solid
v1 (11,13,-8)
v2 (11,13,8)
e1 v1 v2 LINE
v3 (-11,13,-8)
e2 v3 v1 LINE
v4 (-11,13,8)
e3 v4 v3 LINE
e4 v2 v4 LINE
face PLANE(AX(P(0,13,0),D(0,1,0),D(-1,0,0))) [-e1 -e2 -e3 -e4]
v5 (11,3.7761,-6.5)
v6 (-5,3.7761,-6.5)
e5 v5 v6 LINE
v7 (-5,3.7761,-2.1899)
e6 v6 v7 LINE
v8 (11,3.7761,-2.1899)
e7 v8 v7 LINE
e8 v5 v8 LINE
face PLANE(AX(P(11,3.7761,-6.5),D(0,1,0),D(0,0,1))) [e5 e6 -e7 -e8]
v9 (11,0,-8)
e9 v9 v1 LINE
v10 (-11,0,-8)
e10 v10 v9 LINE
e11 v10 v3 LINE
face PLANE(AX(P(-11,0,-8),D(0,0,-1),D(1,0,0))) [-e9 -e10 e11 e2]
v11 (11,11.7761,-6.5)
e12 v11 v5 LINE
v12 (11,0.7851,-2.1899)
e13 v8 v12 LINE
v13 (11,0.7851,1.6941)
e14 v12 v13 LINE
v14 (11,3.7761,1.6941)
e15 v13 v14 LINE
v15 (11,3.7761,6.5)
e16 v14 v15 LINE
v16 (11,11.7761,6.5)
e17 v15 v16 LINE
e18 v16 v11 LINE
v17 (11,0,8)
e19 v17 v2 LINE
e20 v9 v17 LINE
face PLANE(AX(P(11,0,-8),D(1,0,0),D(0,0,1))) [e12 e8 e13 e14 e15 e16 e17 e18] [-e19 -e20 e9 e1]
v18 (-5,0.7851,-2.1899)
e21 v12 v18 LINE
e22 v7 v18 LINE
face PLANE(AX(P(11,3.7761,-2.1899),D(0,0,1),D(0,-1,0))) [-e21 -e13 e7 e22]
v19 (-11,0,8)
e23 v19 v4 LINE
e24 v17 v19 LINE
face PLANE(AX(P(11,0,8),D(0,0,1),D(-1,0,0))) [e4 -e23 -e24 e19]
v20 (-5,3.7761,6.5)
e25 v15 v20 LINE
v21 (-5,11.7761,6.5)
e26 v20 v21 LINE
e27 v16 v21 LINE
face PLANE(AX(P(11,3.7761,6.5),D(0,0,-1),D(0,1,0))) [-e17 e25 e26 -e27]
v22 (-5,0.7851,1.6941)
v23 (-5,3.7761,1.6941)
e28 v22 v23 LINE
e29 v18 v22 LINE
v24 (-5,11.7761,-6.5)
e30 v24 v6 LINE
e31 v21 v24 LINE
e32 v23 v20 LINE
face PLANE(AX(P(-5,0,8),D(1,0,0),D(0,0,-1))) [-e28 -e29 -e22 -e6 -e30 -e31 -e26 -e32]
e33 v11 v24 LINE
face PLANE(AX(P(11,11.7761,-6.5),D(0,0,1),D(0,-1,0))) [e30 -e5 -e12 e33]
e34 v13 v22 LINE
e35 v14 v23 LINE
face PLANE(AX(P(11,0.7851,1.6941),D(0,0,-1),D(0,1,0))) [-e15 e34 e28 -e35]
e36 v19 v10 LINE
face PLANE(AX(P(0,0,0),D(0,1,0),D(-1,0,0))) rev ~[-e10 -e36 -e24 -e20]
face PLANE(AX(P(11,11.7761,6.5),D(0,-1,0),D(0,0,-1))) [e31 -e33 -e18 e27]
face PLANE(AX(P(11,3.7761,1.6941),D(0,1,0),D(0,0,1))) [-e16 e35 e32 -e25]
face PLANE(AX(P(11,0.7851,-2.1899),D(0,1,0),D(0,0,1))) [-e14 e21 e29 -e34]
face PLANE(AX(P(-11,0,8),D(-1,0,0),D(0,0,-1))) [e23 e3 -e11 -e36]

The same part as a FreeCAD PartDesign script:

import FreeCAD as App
import Part
import Sketcher

V = App.Vector
Q = App.Units.Quantity


def add_polygon(sketch, points):
    """Adds a closed chain of lines whose ends are joined by coincident constraints."""
    first, n = sketch.GeometryCount, len(points)
    for a, b in zip(points, points[1:] + points[:1]):
        sketch.addGeometry(Part.LineSegment(App.Vector(*a, 0), App.Vector(*b, 0)), False)
    for i in range(n):
        sketch.addConstraint(Sketcher.Constraint("Coincident", first + i, 2, first + (i + 1) % n, 1))

doc = App.newDocument("Part")
params = doc.addObject("Spreadsheet::Sheet", "Params")
for row, (alias, value) in enumerate([
    ("sketch1_width", "22 mm"),
    ("sketch1_height", "16 mm"),
    ("pad1_length", "13 mm"),
    ("sketch2_width", "8 mm"),
    ("sketch2_height", "13 mm"),
    ("sketch2_height2", "4.31 mm"),
    ("pocket1_length", "16 mm"),
], start=1):
    params.set(f"A{row}", alias)
    params.set(f"B{row}", "=" + value)
    params.setAlias(f"B{row}", alias)

body = doc.addObject("PartDesign::Body", "Body")

# Sketch on XZ plane
sketch1 = doc.addObject("Sketcher::SketchObject", "Sketch")
body.addObject(sketch1)
sketch1.AttachmentSupport = (doc.XZ_Plane, [""])
sketch1.MapMode = "FlatFace"
add_polygon(sketch1, [(-11, 8), (11, 8), (11, -8), (-11, -8)])  # lines 0-3
sketch1.addConstraint([
    Sketcher.Constraint("Horizontal", 0),
    Sketcher.Constraint("Vertical", 1),
    Sketcher.Constraint("Horizontal", 2),
    Sketcher.Constraint("Vertical", 3),
    Sketcher.Constraint("Symmetric", 0, 2, 2, 2, -1, 1),
    Sketcher.Constraint("DistanceX", 0, 1, 0, 2, Q("22 mm")),
    Sketcher.Constraint("DistanceY", 1, 2, 1, 1, Q("16 mm")),
])
sketch1.setExpression("Constraints[9]", "Params.sketch1_width")
sketch1.setExpression("Constraints[10]", "Params.sketch1_height")
pad1 = doc.addObject("PartDesign::Pad", "Pad")
body.addObject(pad1)
pad1.Profile = sketch1
pad1.setExpression("Length", "Params.pad1_length")
pad1.Reversed = True

# Sketch on YZ plane
sketch2 = doc.addObject("Sketcher::SketchObject", "Sketch001")
body.addObject(sketch2)
sketch2.AttachmentSupport = (doc.YZ_Plane, [""])
sketch2.MapMode = "FlatFace"
sketch2.AttachmentOffset = App.Placement(V(0, 0, 11), App.Rotation())
add_polygon(sketch2, [(11.8, -6.5), (11.8, 6.5), (3.8, 6.5), (3.8, 1.7), (0.8, 1.7), (0.8, -2.2), (3.8, -2.2), (3.8, -6.5)])  # lines 0-7
sketch2.addConstraint([
    Sketcher.Constraint("Vertical", 0),
    Sketcher.Constraint("Horizontal", 1),
    Sketcher.Constraint("Vertical", 2),
    Sketcher.Constraint("Horizontal", 3),
    Sketcher.Constraint("Vertical", 4),
    Sketcher.Constraint("Horizontal", 5),
    Sketcher.Constraint("Vertical", 6),
    Sketcher.Constraint("Horizontal", 7),
    Sketcher.Constraint("Symmetric", 1, 2, 6, 2, -1),
    Sketcher.Constraint("DistanceX", 1, 2, 1, 1, Q("8 mm")),
    Sketcher.Constraint("DistanceY", 0, 1, 0, 2, Q("13 mm")),
    Sketcher.Constraint("DistanceY", 6, 2, 6, 1, Q("4.31 mm")),
    Sketcher.Constraint("DistanceX", 3, 2, 3, 1, Q("2.991 mm")),
    Sketcher.Constraint("DistanceY", 2, 2, 2, 1, Q("4.806 mm")),
    Sketcher.Constraint("DistanceX", -1, 1, 0, 2, Q("11.776 mm")),
])
sketch2.setExpression("Constraints[17]", "Params.sketch2_width")
sketch2.setExpression("Constraints[18]", "Params.sketch2_height")
sketch2.setExpression("Constraints[19]", "Params.sketch2_height2")
pocket1 = doc.addObject("PartDesign::Pocket", "Pocket")
body.addObject(pocket1)
pocket1.Profile = sketch2
pocket1.setExpression("Length", "Params.pocket1_length")

doc.recompute()
